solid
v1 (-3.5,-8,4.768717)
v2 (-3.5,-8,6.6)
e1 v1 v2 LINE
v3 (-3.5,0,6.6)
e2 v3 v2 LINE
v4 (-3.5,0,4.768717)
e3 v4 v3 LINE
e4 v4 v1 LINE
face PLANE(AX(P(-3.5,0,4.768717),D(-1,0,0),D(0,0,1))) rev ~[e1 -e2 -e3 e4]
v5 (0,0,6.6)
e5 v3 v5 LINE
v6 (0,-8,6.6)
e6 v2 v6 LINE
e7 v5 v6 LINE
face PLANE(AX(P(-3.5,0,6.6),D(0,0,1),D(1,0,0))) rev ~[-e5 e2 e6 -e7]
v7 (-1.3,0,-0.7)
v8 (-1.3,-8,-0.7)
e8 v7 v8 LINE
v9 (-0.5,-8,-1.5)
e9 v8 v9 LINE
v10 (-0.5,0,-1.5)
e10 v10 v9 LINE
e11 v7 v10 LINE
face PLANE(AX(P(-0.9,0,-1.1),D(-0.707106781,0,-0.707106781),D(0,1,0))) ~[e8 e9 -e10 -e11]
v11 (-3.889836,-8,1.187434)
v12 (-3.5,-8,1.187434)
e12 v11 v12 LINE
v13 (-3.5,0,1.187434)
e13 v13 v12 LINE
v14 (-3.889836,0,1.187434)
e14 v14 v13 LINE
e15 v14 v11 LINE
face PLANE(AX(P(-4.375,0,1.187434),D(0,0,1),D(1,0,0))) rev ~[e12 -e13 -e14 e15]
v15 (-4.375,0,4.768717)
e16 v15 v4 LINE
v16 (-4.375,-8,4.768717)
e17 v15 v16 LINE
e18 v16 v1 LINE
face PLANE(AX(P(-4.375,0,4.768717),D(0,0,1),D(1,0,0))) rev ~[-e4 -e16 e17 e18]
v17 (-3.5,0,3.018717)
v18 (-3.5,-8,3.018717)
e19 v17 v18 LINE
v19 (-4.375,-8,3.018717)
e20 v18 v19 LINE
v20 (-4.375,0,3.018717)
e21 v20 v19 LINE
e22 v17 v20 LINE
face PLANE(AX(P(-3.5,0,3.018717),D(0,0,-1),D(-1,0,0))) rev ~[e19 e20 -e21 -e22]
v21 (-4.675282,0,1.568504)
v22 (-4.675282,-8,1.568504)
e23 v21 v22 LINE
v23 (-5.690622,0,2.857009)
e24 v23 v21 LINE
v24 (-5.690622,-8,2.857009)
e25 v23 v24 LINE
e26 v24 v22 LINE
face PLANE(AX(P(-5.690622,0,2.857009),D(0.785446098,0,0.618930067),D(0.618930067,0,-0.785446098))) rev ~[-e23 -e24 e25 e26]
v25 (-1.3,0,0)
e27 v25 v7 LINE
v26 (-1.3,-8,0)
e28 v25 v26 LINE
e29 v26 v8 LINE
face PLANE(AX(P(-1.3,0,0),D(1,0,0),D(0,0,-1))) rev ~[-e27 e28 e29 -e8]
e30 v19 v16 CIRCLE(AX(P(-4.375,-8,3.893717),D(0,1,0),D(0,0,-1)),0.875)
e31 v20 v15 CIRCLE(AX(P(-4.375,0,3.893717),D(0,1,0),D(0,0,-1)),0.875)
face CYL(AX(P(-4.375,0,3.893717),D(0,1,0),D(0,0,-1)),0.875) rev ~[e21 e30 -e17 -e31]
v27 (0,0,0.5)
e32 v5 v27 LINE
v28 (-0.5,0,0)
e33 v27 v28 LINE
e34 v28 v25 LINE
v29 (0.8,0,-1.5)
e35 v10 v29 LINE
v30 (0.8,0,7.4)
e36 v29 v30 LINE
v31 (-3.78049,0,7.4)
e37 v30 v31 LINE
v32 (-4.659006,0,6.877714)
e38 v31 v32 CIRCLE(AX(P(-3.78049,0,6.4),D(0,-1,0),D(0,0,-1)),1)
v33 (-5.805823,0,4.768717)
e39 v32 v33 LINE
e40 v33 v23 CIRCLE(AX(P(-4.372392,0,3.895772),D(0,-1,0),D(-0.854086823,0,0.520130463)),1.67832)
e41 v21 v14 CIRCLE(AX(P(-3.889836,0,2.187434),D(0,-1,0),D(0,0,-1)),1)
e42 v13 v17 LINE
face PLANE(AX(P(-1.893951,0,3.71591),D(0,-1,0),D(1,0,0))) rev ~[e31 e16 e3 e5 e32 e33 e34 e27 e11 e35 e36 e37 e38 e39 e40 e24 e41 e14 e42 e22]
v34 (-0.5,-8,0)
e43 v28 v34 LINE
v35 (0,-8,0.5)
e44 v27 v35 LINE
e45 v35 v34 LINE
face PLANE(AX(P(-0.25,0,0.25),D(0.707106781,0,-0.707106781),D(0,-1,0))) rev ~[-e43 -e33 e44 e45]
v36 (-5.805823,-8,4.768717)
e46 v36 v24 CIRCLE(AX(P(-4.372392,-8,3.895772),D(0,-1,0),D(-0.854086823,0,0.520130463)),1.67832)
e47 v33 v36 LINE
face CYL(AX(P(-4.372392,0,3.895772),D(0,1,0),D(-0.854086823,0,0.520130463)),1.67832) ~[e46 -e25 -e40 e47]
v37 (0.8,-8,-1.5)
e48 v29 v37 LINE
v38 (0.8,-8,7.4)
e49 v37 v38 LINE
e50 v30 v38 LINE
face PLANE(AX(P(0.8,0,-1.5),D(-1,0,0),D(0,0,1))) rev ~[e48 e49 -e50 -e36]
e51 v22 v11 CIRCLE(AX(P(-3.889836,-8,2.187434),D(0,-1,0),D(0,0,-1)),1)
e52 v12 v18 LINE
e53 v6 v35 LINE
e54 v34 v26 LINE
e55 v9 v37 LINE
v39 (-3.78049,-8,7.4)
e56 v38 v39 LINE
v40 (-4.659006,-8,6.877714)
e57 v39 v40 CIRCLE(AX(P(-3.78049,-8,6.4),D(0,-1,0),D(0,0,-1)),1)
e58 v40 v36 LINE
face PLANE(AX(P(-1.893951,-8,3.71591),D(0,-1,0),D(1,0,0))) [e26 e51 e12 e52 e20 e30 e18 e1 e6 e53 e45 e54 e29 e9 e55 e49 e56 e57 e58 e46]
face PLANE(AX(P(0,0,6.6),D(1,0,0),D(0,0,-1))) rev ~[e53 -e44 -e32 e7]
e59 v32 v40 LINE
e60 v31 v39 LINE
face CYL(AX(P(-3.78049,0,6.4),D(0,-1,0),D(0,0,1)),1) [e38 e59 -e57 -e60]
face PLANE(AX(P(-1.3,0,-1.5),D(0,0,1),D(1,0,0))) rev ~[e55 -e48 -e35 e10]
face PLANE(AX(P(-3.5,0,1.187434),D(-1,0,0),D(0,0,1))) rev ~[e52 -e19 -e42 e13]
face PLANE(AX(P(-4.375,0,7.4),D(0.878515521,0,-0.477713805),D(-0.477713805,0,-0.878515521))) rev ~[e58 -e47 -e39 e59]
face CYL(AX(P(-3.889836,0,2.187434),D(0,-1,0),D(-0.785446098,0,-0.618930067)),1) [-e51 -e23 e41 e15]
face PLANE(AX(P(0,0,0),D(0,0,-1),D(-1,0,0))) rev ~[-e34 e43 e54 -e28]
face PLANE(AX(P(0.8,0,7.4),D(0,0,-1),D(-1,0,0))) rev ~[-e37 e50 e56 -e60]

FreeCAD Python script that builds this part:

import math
import FreeCAD as App
import Part
import Sketcher
Q = App.Units.Quantity


def edges_at(feature, points):
    """Names of the edges that pass closest to the given points."""
    edges = feature.Shape.Edges
    near = lambda p: min(range(len(edges)), key=lambda i: edges[i].distToShape(Part.Vertex(*p))[0])
    return sorted({f"Edge{near(p) + 1}" for p in points})

doc = App.newDocument("Part")
body = doc.addObject("PartDesign::Body", "Body")

# Sketch on XZ plane
sketch1 = body.newObject("Sketcher::SketchObject", "Sketch")
sketch1.AttachmentSupport = (doc.getObject("XZ_Plane"), [""])
sketch1.MapMode = "FlatFace"
sketch1.addGeometry(Part.LineSegment(App.Vector(0, 6.6, 0), App.Vector(0, 0, 0)), False)
sketch1.addGeometry(Part.LineSegment(App.Vector(0, 0, 0), App.Vector(-1.3, 0, 0)), False)
sketch1.addGeometry(Part.LineSegment(App.Vector(-1.3, 0, 0), App.Vector(-1.3, -1.5, 0)), False)
sketch1.addGeometry(Part.LineSegment(App.Vector(-1.3, -1.5, 0), App.Vector(0.8, -1.5, 0)), False)
sketch1.addGeometry(Part.LineSegment(App.Vector(0.8, -1.5, 0), App.Vector(0.8, 7.4, 0)), False)
sketch1.addGeometry(Part.LineSegment(App.Vector(0.8, 7.4, 0), App.Vector(-4.375, 7.4, 0)), False)
sketch1.addGeometry(Part.LineSegment(App.Vector(-4.375, 7.4, 0), App.Vector(-5.805823, 4.768717, 0)), False)
sketch1.addGeometry(Part.ArcOfCircle(Part.Circle(App.Vector(-4.372392, 3.895772, 0), App.Vector(0, 0, 1), 1.67832), math.radians(148.658997), math.radians(218.238038)), False)
sketch1.addGeometry(Part.LineSegment(App.Vector(-5.690622, 2.857009, 0), App.Vector(-4.375, 1.187434, 0)), False)
sketch1.addGeometry(Part.LineSegment(App.Vector(-4.375, 1.187434, 0), App.Vector(-3.5, 1.187434, 0)), False)
sketch1.addGeometry(Part.LineSegment(App.Vector(-3.5, 1.187434, 0), App.Vector(-3.5, 3.018717, 0)), False)
sketch1.addGeometry(Part.LineSegment(App.Vector(-3.5, 3.018717, 0), App.Vector(-4.375, 3.018717, 0)), False)
sketch1.addGeometry(Part.ArcOfCircle(Part.Circle(App.Vector(-4.375, 3.893717, 0), App.Vector(0, 0, 1), 0.875), math.radians(90), math.radians(270)), False)
sketch1.addGeometry(Part.LineSegment(App.Vector(-4.375, 4.768717, 0), App.Vector(-3.5, 4.768717, 0)), False)
sketch1.addGeometry(Part.LineSegment(App.Vector(-3.5, 4.768717, 0), App.Vector(-3.5, 6.6, 0)), False)
sketch1.addGeometry(Part.LineSegment(App.Vector(-3.5, 6.6, 0), App.Vector(0, 6.6, 0)), False)
sketch1.addConstraint(Sketcher.Constraint("Coincident", 0, 2, 1, 1))
sketch1.addConstraint(Sketcher.Constraint("Coincident", 1, 2, 2, 1))
sketch1.addConstraint(Sketcher.Constraint("Coincident", 2, 2, 3, 1))
sketch1.addConstraint(Sketcher.Constraint("Coincident", 3, 2, 4, 1))
sketch1.addConstraint(Sketcher.Constraint("Coincident", 4, 2, 5, 1))
sketch1.addConstraint(Sketcher.Constraint("Coincident", 5, 2, 6, 1))
sketch1.addConstraint(Sketcher.Constraint("Coincident", 6, 2, 7, 1))
sketch1.addConstraint(Sketcher.Constraint("Tangent", 7, 2, 8, 1))
sketch1.addConstraint(Sketcher.Constraint("Coincident", 8, 2, 9, 1))
sketch1.addConstraint(Sketcher.Constraint("Coincident", 9, 2, 10, 1))
sketch1.addConstraint(Sketcher.Constraint("Coincident", 10, 2, 11, 1))
sketch1.addConstraint(Sketcher.Constraint("Tangent", 11, 2, 12, 2))
sketch1.addConstraint(Sketcher.Constraint("Tangent", 12, 1, 13, 1))
sketch1.addConstraint(Sketcher.Constraint("Coincident", 13, 2, 14, 1))
sketch1.addConstraint(Sketcher.Constraint("Coincident", 14, 2, 15, 1))
sketch1.addConstraint(Sketcher.Constraint("Coincident", 15, 2, 0, 1))
sketch1.addConstraint(Sketcher.Constraint("Vertical", 0))
sketch1.addConstraint(Sketcher.Constraint("Horizontal", 1))
sketch1.addConstraint(Sketcher.Constraint("Vertical", 2))
sketch1.addConstraint(Sketcher.Constraint("Horizontal", 3))
sketch1.addConstraint(Sketcher.Constraint("Vertical", 4))
sketch1.addConstraint(Sketcher.Constraint("Horizontal", 5))
sketch1.addConstraint(Sketcher.Constraint("Horizontal", 9))
sketch1.addConstraint(Sketcher.Constraint("Vertical", 10))
sketch1.addConstraint(Sketcher.Constraint("Horizontal", 11))
sketch1.addConstraint(Sketcher.Constraint("Horizontal", 13))
sketch1.addConstraint(Sketcher.Constraint("Vertical", 14))
sketch1.addConstraint(Sketcher.Constraint("Horizontal", 15))
sketch1.addConstraint(Sketcher.Constraint("Coincident", 0, 2, -1, 1))
sketch1.addConstraint(Sketcher.Constraint("Horizontal", 6, 2, 12, 1))
sketch1.addConstraint(Sketcher.Constraint("Vertical", 12, 3, 5, 2))
sketch1.addConstraint(Sketcher.Constraint("Vertical", 5, 2, 8, 2))
sketch1.addConstraint(Sketcher.Constraint("Vertical", 10, 2, 13, 2))
sketch1.addConstraint(Sketcher.Constraint("Equal", 10, 14))
sketch1.addConstraint(Sketcher.Constraint("DistanceX", 1, 2, 1, 1, Q("1.3 mm")))
sketch1.addConstraint(Sketcher.Constraint("DistanceX", 3, 1, 3, 2, Q("2.1 mm")))
sketch1.addConstraint(Sketcher.Constraint("DistanceX", 15, 1, 15, 2, Q("3.5 mm")))
sketch1.addConstraint(Sketcher.Constraint("DistanceY", 0, 2, 0, 1, Q("6.6 mm")))
sketch1.addConstraint(Sketcher.Constraint("DistanceY", 2, 2, 2, 1, Q("1.5 mm")))
sketch1.addConstraint(Sketcher.Constraint("DistanceY", 4, 1, 4, 2, Q("8.9 mm")))
sketch1.addConstraint(Sketcher.Constraint("Radius", 12, Q("0.875 mm")))
sketch1.addConstraint(Sketcher.Constraint("DistanceX", 5, 2, 5, 1, Q("5.175 mm")))
sketch1.addConstraint(Sketcher.Constraint("Radius", 7, Q("1.67832 mm")))
sketch1.addConstraint(Sketcher.Constraint("DistanceX", 6, 2, 7, 2, Q("0.115201 mm")))
sketch1.addConstraint(Sketcher.Constraint("Distance", 8, Q("2.125639 mm")))
sketch1.addConstraint(Sketcher.Constraint("DistanceY", 10, 1, 10, 2, Q("1.831283 mm")))
pad1 = body.newObject("PartDesign::Pad", "Pad")
pad1.Profile = sketch1
pad1.Length = 8
doc.recompute()

chamfer = body.newObject("PartDesign::Chamfer", "Chamfer")
chamfer.Base = (pad1, edges_at(pad1, [(0, -4, 0)]))
chamfer.Size = 0.5
doc.recompute()

chamfer2 = body.newObject("PartDesign::Chamfer", "Chamfer001")
chamfer2.Base = (chamfer, edges_at(chamfer, [(-1.3, -4, -1.5)]))
chamfer2.Size = 0.8
doc.recompute()

fillet = body.newObject("PartDesign::Fillet", "Fillet")
fillet.Base = (chamfer2, edges_at(chamfer2, [(-4.375, -4, 1.187), (-4.375, -4, 7.4)]))
fillet.Radius = 1

doc.recompute()
